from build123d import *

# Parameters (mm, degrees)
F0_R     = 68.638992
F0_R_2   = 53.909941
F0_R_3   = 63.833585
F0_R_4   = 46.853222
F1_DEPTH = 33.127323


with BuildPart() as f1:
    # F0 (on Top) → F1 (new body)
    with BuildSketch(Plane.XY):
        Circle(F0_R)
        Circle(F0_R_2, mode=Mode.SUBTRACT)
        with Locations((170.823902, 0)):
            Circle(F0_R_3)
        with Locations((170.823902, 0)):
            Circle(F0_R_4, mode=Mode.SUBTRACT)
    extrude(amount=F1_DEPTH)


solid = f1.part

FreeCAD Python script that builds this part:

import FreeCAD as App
import Part
import Sketcher
Q = App.Units.Quantity

doc = App.newDocument("Part")
body = doc.addObject("PartDesign::Body", "Body")
body.AllowCompound = True

# Sketch on XY plane
sketch1 = body.newObject("Sketcher::SketchObject", "Sketch")
sketch1.AttachmentSupport = (doc.getObject("XY_Plane"), [""])
sketch1.MapMode = "FlatFace"
sketch1.addGeometry([
    Part.Circle(App.Vector(0, 0, 0), App.Vector(0, 0, 1), 69),
    Part.Circle(App.Vector(0, 0, 0), App.Vector(0, 0, 1), 54),
    Part.Circle(App.Vector(171, 0, 0), App.Vector(0, 0, 1), 64),
    Part.Circle(App.Vector(171, 0, 0), App.Vector(0, 0, 1), 47),
], False)
sketch1.addConstraint([
    Sketcher.Constraint("Coincident", 0, 3, -1, 1),
    Sketcher.Constraint("Coincident", 1, 3, -1, 1),
    Sketcher.Constraint("Coincident", 3, 3, 2, 3),
    Sketcher.Constraint("PointOnObject", 2, 3, -1),
    Sketcher.Constraint("Diameter", 2, Q("127.66717 mm")),
    Sketcher.Constraint("Diameter", 0, Q("137.277984 mm")),
    Sketcher.Constraint("Diameter", 1, Q("107.819882 mm")),
    Sketcher.Constraint("Diameter", 3, Q("93.706444 mm")),
    Sketcher.Constraint("DistanceX", -1, 1, 2, 3, Q("170.823902 mm")),
])
pad1 = body.newObject("PartDesign::Pad", "Pad")
pad1.Profile = sketch1
pad1.Length = 33.127323

doc.recompute()
